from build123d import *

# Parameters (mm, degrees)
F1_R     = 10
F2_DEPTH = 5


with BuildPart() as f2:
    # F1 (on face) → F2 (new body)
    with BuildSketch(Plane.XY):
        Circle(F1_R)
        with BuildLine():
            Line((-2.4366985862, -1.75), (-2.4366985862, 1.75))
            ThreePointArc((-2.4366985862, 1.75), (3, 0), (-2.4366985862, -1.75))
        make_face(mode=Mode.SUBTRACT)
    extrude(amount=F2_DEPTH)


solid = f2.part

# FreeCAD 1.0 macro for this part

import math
import FreeCAD as App
import Part
import Sketcher
from FreeCAD import Vector

doc = App.newDocument("Part")
body = doc.addObject("PartDesign::Body", "Body")

sketch1 = body.newObject("Sketcher::SketchObject", "Sketch")
sketch1.AttachmentSupport = (doc.getObject("XY_Plane"), [""])
sketch1.MapMode = "FlatFace"
sketch1.addGeometry(Part.Circle(Vector(0, 0, 0), Vector(0, 0, 1), 10), False)
sketch1.addGeometry(Part.ArcOfCircle(Part.Circle(Vector(0, 0, 0), Vector(0, 0, 1), 3), math.radians(-144), math.radians(144)), False)
sketch1.addGeometry(Part.LineSegment(Vector(-2.4, -1.8, 0), Vector(-2.4, 1.8, 0)), False)
sketch1.addConstraint(Sketcher.Constraint("Coincident", 1, 1, 2, 1))
sketch1.addConstraint(Sketcher.Constraint("Coincident", 2, 2, 1, 2))
sketch1.addConstraint(Sketcher.Constraint("Vertical", 2))
sketch1.addConstraint(Sketcher.Constraint("Coincident", 0, 3, -1, 1))
sketch1.addConstraint(Sketcher.Constraint("Coincident", 1, 3, -1, 1))
sketch1.addConstraint(Sketcher.Constraint("Diameter", 0, 20.0))
sketch1.addConstraint(Sketcher.Constraint("Radius", 1, 3.0))
sketch1.addConstraint(Sketcher.Constraint("DistanceY", 2, 1, 2, 2, 3.5))
pad1 = body.newObject("PartDesign::Pad", "Pad")
pad1.Profile = sketch1
pad1.Length = 5

doc.recompute()
